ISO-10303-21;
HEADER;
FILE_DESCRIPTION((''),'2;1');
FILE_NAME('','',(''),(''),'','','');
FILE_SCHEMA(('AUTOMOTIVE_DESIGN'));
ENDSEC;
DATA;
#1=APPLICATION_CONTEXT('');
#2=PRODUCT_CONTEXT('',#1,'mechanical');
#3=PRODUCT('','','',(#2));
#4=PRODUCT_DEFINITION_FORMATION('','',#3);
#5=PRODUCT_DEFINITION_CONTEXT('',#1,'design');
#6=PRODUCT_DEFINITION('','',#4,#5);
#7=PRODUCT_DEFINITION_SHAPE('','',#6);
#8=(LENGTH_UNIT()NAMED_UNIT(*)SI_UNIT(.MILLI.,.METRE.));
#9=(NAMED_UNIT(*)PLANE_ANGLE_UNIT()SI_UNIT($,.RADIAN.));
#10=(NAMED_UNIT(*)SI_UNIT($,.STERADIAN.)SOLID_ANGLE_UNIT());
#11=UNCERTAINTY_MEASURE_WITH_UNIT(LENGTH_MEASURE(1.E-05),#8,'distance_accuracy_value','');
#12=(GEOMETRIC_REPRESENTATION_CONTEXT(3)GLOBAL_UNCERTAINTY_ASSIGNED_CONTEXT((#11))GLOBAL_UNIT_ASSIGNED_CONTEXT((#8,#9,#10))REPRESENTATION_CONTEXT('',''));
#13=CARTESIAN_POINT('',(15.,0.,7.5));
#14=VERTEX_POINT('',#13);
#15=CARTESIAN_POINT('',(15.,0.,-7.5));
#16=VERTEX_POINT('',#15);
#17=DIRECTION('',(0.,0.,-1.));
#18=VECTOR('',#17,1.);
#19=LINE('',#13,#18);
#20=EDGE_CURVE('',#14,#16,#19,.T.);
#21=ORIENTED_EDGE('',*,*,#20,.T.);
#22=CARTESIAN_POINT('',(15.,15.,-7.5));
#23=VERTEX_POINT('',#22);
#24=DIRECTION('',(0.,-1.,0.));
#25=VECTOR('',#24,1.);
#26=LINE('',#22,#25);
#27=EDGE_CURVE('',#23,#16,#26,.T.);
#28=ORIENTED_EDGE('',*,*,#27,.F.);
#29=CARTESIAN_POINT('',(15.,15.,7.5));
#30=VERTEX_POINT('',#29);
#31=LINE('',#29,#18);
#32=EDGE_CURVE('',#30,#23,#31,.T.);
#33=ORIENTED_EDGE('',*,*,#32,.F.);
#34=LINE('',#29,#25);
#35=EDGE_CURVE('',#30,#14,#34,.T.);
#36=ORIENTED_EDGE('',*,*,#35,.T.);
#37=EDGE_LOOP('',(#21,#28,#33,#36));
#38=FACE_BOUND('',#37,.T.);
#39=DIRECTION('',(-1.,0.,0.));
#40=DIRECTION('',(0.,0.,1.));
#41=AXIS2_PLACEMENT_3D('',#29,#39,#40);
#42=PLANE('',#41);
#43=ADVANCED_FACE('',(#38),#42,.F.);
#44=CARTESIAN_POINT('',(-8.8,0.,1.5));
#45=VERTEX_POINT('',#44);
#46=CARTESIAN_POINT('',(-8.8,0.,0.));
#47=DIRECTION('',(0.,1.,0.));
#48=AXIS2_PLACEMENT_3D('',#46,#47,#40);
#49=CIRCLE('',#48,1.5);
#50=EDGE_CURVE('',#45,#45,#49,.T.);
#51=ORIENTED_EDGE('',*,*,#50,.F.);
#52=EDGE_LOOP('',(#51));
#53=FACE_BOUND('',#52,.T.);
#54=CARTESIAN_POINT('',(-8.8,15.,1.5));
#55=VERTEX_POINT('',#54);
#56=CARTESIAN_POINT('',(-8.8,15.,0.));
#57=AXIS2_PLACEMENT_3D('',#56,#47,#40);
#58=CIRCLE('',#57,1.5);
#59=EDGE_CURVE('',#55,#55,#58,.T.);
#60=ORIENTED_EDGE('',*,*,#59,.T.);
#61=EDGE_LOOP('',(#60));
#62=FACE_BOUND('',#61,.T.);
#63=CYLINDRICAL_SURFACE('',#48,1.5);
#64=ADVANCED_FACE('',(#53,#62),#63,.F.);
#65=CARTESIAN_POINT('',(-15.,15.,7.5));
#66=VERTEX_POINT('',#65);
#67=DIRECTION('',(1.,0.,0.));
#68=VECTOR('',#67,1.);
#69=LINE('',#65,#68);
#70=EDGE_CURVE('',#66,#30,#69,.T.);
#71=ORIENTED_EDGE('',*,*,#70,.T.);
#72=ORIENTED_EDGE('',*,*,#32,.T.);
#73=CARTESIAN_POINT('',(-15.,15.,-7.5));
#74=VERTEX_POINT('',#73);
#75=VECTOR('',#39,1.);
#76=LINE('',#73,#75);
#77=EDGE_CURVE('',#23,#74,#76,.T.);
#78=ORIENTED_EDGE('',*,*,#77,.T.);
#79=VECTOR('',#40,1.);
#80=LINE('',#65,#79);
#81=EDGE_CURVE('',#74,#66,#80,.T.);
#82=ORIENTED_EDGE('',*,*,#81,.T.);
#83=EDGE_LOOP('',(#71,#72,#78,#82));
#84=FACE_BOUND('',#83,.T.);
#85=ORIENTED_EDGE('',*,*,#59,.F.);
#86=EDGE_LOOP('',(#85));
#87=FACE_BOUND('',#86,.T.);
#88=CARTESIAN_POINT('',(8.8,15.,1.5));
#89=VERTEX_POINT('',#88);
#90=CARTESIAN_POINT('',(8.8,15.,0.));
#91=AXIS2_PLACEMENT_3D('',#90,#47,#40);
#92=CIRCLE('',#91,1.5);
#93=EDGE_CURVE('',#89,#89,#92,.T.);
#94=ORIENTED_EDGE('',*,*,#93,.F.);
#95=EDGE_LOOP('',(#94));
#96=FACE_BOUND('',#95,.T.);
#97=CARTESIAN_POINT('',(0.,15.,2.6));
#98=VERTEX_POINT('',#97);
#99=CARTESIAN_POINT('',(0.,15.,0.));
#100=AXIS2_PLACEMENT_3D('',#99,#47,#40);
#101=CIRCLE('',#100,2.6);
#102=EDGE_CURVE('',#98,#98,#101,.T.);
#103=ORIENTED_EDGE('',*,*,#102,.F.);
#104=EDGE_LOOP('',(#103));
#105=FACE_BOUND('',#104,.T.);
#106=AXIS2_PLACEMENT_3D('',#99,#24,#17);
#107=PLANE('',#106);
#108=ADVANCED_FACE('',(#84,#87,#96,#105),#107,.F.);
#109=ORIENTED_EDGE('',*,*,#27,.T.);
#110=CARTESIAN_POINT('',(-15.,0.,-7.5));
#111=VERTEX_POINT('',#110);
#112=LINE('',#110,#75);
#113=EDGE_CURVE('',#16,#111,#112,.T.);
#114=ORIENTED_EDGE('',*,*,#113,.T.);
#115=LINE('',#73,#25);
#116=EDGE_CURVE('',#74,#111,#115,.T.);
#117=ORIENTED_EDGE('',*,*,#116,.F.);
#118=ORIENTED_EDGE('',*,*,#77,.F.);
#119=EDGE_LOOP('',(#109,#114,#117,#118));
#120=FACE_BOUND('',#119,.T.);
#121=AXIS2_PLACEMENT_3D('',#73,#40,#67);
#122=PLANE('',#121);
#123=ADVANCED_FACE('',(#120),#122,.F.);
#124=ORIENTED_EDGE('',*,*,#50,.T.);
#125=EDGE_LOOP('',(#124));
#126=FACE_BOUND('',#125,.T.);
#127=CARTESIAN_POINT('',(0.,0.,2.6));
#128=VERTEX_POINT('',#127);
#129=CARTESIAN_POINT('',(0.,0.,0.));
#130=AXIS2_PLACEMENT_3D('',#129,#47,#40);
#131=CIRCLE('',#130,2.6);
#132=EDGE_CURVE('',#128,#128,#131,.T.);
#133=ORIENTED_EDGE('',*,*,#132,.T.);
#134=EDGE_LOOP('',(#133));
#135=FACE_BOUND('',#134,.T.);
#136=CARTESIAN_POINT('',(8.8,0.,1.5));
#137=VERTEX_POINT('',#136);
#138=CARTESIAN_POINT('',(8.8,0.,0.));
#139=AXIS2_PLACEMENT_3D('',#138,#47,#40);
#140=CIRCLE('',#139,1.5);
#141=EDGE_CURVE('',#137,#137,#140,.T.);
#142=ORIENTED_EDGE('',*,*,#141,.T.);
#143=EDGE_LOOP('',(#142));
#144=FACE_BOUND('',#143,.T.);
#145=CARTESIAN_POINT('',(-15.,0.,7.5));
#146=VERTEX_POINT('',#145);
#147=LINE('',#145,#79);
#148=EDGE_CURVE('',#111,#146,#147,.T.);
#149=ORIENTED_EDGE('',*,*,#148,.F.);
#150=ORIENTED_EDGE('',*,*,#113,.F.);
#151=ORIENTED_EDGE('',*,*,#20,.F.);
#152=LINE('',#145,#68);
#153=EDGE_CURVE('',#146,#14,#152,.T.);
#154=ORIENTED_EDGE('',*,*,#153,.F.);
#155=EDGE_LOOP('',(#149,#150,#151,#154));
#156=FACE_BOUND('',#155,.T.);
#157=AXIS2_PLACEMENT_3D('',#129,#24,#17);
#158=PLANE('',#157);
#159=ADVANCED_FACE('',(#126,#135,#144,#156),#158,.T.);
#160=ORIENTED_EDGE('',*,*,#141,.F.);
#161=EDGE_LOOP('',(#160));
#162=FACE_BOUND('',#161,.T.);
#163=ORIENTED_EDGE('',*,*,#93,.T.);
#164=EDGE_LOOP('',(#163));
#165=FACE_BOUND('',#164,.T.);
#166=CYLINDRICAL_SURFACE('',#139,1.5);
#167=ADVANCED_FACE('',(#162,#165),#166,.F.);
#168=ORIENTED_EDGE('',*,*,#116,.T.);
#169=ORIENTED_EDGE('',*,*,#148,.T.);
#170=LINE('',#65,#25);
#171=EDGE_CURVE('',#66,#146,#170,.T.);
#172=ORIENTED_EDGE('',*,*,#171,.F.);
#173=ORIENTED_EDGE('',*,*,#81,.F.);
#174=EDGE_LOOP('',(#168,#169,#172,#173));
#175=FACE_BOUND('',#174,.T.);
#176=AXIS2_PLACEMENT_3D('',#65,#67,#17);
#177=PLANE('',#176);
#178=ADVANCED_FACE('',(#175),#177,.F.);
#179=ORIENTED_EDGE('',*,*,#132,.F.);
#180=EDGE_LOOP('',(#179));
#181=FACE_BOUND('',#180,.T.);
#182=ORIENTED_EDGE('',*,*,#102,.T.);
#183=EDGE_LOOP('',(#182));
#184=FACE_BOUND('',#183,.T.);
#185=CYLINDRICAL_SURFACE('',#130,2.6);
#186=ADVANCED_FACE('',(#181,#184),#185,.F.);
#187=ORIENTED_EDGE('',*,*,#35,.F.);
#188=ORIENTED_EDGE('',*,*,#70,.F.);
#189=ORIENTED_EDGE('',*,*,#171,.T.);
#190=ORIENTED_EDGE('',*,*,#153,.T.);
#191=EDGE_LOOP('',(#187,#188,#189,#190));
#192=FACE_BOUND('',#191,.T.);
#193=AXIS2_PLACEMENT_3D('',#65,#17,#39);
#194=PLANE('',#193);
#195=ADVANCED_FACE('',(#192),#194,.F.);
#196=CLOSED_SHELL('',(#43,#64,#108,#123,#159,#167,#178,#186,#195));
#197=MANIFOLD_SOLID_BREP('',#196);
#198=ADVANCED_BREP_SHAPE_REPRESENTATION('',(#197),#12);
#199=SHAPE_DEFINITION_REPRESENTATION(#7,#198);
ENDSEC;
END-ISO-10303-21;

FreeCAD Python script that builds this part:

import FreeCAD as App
import Part
import Sketcher
Q = App.Units.Quantity

doc = App.newDocument("Part")
body = doc.addObject("PartDesign::Body", "Body")

# Sketch on XZ plane
sketch1 = body.newObject("Sketcher::SketchObject", "Sketch")
sketch1.AttachmentSupport = (doc.getObject("XZ_Plane"), [""])
sketch1.MapMode = "FlatFace"
sketch1.addGeometry(Part.LineSegment(App.Vector(-15, -8, 0), App.Vector(-15, 8, 0)), False)
sketch1.addGeometry(Part.LineSegment(App.Vector(-15, 8, 0), App.Vector(15, 8, 0)), False)
sketch1.addGeometry(Part.LineSegment(App.Vector(15, 8, 0), App.Vector(15, -8, 0)), False)
sketch1.addGeometry(Part.LineSegment(App.Vector(15, -8, 0), App.Vector(-15, -8, 0)), False)
sketch1.addConstraint(Sketcher.Constraint("Coincident", 0, 2, 1, 1))
sketch1.addConstraint(Sketcher.Constraint("Coincident", 1, 2, 2, 1))
sketch1.addConstraint(Sketcher.Constraint("Coincident", 2, 2, 3, 1))
sketch1.addConstraint(Sketcher.Constraint("Coincident", 3, 2, 0, 1))
sketch1.addConstraint(Sketcher.Constraint("Vertical", 0))
sketch1.addConstraint(Sketcher.Constraint("Horizontal", 1))
sketch1.addConstraint(Sketcher.Constraint("Vertical", 2))
sketch1.addConstraint(Sketcher.Constraint("Horizontal", 3))
sketch1.addConstraint(Sketcher.Constraint("Symmetric", 0, 2, 2, 2, -1, 1))
sketch1.addConstraint(Sketcher.Constraint("DistanceX", 1, 1, 1, 2, Q("30 mm")))
sketch1.addConstraint(Sketcher.Constraint("DistanceY", 0, 1, 0, 2, Q("15 mm")))
pad1 = body.newObject("PartDesign::Pad", "Pad")
pad1.Profile = sketch1
pad1.Length = 15
pad1.Reversed = True

# Sketch on XZ plane
sketch2 = body.newObject("Sketcher::SketchObject", "Sketch001")
sketch2.AttachmentSupport = (doc.getObject("XZ_Plane"), [""])
sketch2.MapMode = "FlatFace"
sketch2.AttachmentOffset = App.Placement(App.Vector(0, 0, -15), App.Rotation())
sketch2.addGeometry(Part.Circle(App.Vector(0, 0, 0), App.Vector(0, 0, 1), 2.6), False)
sketch2.addGeometry(Part.Circle(App.Vector(-8.8, 0, 0), App.Vector(0, 0, 1), 1.5), False)
sketch2.addGeometry(Part.Circle(App.Vector(8.8, 0, 0), App.Vector(0, 0, 1), 1.5), False)
sketch2.addConstraint(Sketcher.Constraint("Coincident", 0, 3, -1, 1))
sketch2.addConstraint(Sketcher.Constraint("Equal", 1, 2))
sketch2.addConstraint(Sketcher.Constraint("Symmetric", 1, 3, 2, 3, -1, 1))
sketch2.addConstraint(Sketcher.Constraint("PointOnObject", 1, 3, -1))
sketch2.addConstraint(Sketcher.Constraint("Diameter", 1, Q("3 mm")))
sketch2.addConstraint(Sketcher.Constraint("Diameter", 0, Q("5.2 mm")))
sketch2.addConstraint(Sketcher.Constraint("DistanceX", 1, 3, -1, 1, Q("8.8 mm")))
pocket1 = body.newObject("PartDesign::Pocket", "Pocket")
pocket1.Profile = sketch2
pocket1.Type = "ThroughAll"
pocket1.Reversed = True

doc.recompute()
